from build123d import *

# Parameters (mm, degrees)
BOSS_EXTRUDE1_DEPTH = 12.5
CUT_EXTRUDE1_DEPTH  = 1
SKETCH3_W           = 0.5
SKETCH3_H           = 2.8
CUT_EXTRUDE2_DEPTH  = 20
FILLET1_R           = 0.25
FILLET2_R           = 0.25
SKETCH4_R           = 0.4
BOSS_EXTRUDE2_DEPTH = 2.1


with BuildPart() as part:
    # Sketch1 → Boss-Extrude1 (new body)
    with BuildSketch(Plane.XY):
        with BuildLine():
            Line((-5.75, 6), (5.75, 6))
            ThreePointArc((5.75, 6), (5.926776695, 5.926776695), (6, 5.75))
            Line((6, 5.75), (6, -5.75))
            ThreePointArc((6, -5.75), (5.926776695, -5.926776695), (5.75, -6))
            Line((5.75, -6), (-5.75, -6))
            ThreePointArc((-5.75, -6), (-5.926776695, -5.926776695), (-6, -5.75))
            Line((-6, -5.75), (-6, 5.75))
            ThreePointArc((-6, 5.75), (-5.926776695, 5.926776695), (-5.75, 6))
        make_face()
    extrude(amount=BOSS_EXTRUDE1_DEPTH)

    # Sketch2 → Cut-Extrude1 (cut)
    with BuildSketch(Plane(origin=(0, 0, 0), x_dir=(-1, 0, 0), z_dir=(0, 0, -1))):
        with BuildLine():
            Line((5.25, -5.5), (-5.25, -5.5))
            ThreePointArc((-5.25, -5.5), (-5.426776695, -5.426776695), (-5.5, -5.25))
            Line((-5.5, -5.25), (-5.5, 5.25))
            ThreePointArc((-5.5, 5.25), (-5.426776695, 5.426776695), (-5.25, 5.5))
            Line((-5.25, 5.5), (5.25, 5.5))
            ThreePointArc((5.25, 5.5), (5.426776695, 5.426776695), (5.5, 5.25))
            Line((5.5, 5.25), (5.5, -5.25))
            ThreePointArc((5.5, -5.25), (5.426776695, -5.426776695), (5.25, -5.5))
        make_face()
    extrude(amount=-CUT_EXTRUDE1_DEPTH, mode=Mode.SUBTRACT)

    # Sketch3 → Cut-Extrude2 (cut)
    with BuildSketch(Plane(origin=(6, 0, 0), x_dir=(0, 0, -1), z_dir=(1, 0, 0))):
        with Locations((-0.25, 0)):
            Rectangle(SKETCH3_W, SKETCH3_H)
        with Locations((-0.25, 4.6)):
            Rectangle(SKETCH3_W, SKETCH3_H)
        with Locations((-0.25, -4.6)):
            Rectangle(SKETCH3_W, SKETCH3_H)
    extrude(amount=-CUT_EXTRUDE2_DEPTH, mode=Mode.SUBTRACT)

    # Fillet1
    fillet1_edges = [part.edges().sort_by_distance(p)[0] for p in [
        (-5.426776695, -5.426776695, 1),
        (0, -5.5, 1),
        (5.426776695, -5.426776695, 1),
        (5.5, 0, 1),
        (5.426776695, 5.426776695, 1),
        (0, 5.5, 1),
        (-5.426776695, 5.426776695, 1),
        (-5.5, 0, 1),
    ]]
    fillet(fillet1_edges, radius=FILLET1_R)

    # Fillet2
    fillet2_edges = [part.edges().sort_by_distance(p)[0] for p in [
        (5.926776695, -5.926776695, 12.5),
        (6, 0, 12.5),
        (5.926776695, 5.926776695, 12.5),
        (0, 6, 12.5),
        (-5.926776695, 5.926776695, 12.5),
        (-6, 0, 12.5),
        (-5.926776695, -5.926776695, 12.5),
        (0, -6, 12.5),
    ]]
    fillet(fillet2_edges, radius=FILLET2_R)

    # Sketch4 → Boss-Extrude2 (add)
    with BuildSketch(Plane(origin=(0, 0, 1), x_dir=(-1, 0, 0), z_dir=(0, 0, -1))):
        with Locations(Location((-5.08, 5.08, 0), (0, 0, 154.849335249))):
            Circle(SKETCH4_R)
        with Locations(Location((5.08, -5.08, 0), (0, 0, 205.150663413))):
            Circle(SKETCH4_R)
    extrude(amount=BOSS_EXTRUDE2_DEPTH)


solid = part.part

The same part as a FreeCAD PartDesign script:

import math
import FreeCAD as App
import Part
import Sketcher


def edges_at(feature, points):
    """Names of the edges that pass closest to the given points."""
    edges = feature.Shape.Edges
    near = lambda p: min(range(len(edges)), key=lambda i: edges[i].distToShape(Part.Vertex(*p))[0])
    return sorted({f"Edge{near(p) + 1}" for p in points})

doc = App.newDocument("Part")
body = doc.addObject("PartDesign::Body", "Body")

# Sketch on XY plane
sketch1 = body.newObject("Sketcher::SketchObject", "Sketch")
sketch1.AttachmentSupport = (doc.getObject("XY_Plane"), [""])
sketch1.MapMode = "FlatFace"
sketch1.addGeometry([
    Part.LineSegment(App.Vector(5.75, 6, 0), App.Vector(-5.75, 6, 0)),  # 0
    Part.ArcOfCircle(Part.Circle(App.Vector(-5.75, 5.75, 0), App.Vector(0, 0, 1), 0.25), math.radians(90), math.radians(180)),  # 1
    Part.LineSegment(App.Vector(-6, 5.75, 0), App.Vector(-6, -5.75, 0)),  # 2
    Part.ArcOfCircle(Part.Circle(App.Vector(-5.75, -5.75, 0), App.Vector(0, 0, 1), 0.25), math.radians(-180), math.radians(-90)),  # 3
    Part.LineSegment(App.Vector(-5.75, -6, 0), App.Vector(5.75, -6, 0)),  # 4
    Part.ArcOfCircle(Part.Circle(App.Vector(5.75, -5.75, 0), App.Vector(0, 0, 1), 0.25), math.radians(-90), math.radians(0)),  # 5
    Part.LineSegment(App.Vector(6, -5.75, 0), App.Vector(6, 5.75, 0)),  # 6
    Part.ArcOfCircle(Part.Circle(App.Vector(5.75, 5.75, 0), App.Vector(0, 0, 1), 0.25), math.radians(0), math.radians(90)),  # 7
], False)
sketch1.addConstraint([
    Sketcher.Constraint("Tangent", 0, 2, 1, 1),
    Sketcher.Constraint("Tangent", 1, 2, 2, 1),
    Sketcher.Constraint("Tangent", 2, 2, 3, 1),
    Sketcher.Constraint("Tangent", 3, 2, 4, 1),
    Sketcher.Constraint("Tangent", 4, 2, 5, 1),
    Sketcher.Constraint("Tangent", 5, 2, 6, 1),
    Sketcher.Constraint("Tangent", 6, 2, 7, 1),
    Sketcher.Constraint("Tangent", 7, 2, 0, 1),
    Sketcher.Constraint("Horizontal", 0),
    Sketcher.Constraint("Vertical", 2),
    Sketcher.Constraint("Horizontal", 4),
    Sketcher.Constraint("Vertical", 6),
    Sketcher.Constraint("Equal", 1, 3),
    Sketcher.Constraint("Equal", 3, 5),
    Sketcher.Constraint("Equal", 5, 7),
    Sketcher.Constraint("Symmetric", 1, 3, 5, 3, -1, 1),
    Sketcher.Constraint("Equal", 4, 2),
    Sketcher.Constraint("Radius", 1, 0.25),
    Sketcher.Constraint("DistanceX", 0, 2, 0, 1, 11.5),
])
pad1 = body.newObject("PartDesign::Pad", "Pad")
pad1.Profile = sketch1
pad1.Length = 12.5

# Sketch on XY plane
sketch2 = body.newObject("Sketcher::SketchObject", "Sketch001")
sketch2.AttachmentSupport = (doc.getObject("XY_Plane"), [""])
sketch2.MapMode = "FlatFace"
sketch2.addGeometry([
    Part.LineSegment(App.Vector(5.25, -5.5, 0), App.Vector(-5.25, -5.5, 0)),  # 0
    Part.ArcOfCircle(Part.Circle(App.Vector(-5.25, -5.25, 0), App.Vector(0, 0, 1), 0.25), math.radians(-180), math.radians(-90)),  # 1
    Part.LineSegment(App.Vector(-5.5, -5.25, 0), App.Vector(-5.5, 5.25, 0)),  # 2
    Part.ArcOfCircle(Part.Circle(App.Vector(-5.25, 5.25, 0), App.Vector(0, 0, 1), 0.25), math.radians(90), math.radians(180)),  # 3
    Part.LineSegment(App.Vector(-5.25, 5.5, 0), App.Vector(5.25, 5.5, 0)),  # 4
    Part.ArcOfCircle(Part.Circle(App.Vector(5.25, 5.25, 0), App.Vector(0, 0, 1), 0.25), math.radians(0), math.radians(90)),  # 5
    Part.LineSegment(App.Vector(5.5, 5.25, 0), App.Vector(5.5, -5.25, 0)),  # 6
    Part.ArcOfCircle(Part.Circle(App.Vector(5.25, -5.25, 0), App.Vector(0, 0, 1), 0.25), math.radians(-90), math.radians(0)),  # 7
], False)
sketch2.addConstraint([
    Sketcher.Constraint("Tangent", 0, 2, 1, 2),
    Sketcher.Constraint("Tangent", 1, 1, 2, 1),
    Sketcher.Constraint("Tangent", 2, 2, 3, 2),
    Sketcher.Constraint("Tangent", 3, 1, 4, 1),
    Sketcher.Constraint("Tangent", 4, 2, 5, 2),
    Sketcher.Constraint("Tangent", 5, 1, 6, 1),
    Sketcher.Constraint("Tangent", 6, 2, 7, 2),
    Sketcher.Constraint("Tangent", 7, 1, 0, 1),
    Sketcher.Constraint("Horizontal", 0),
    Sketcher.Constraint("Vertical", 2),
    Sketcher.Constraint("Horizontal", 4),
    Sketcher.Constraint("Vertical", 6),
    Sketcher.Constraint("Equal", 1, 3),
    Sketcher.Constraint("Equal", 3, 5),
    Sketcher.Constraint("Equal", 5, 7),
    Sketcher.Constraint("Symmetric", 1, 3, 5, 3, -1, 1),
    Sketcher.Constraint("Equal", 4, 2),
    Sketcher.Constraint("Radius", 1, 0.25),
    Sketcher.Constraint("DistanceX", 0, 2, 0, 1, 10.5),
])
pocket1 = body.newObject("PartDesign::Pocket", "Pocket")
pocket1.Profile = sketch2
pocket1.Length = 1
pocket1.Reversed = True

# Sketch on YZ plane
sketch3 = body.newObject("Sketcher::SketchObject", "Sketch002")
sketch3.AttachmentSupport = (doc.getObject("YZ_Plane"), [""])
sketch3.MapMode = "FlatFace"
sketch3.AttachmentOffset = App.Placement(App.Vector(0, 0, 6), App.Rotation())
sketch3.addGeometry([
    Part.LineSegment(App.Vector(1.4, 0.5, 0), App.Vector(-1.4, 0.5, 0)),  # 0
    Part.LineSegment(App.Vector(-1.4, 0.5, 0), App.Vector(-1.4, 0, 0)),  # 1
    Part.LineSegment(App.Vector(-1.4, 0, 0), App.Vector(1.4, 0, 0)),  # 2
    Part.LineSegment(App.Vector(1.4, 0, 0), App.Vector(1.4, 0.5, 0)),  # 3
    Part.LineSegment(App.Vector(6, 0.5, 0), App.Vector(3.2, 0.5, 0)),  # 4
    Part.LineSegment(App.Vector(3.2, 0.5, 0), App.Vector(3.2, 0, 0)),  # 5
    Part.LineSegment(App.Vector(3.2, 0, 0), App.Vector(6, 0, 0)),  # 6
    Part.LineSegment(App.Vector(6, 0, 0), App.Vector(6, 0.5, 0)),  # 7
    Part.LineSegment(App.Vector(-3.2, 0.5, 0), App.Vector(-6, 0.5, 0)),  # 8
    Part.LineSegment(App.Vector(-6, 0.5, 0), App.Vector(-6, 0, 0)),  # 9
    Part.LineSegment(App.Vector(-6, 0, 0), App.Vector(-3.2, 0, 0)),  # 10
    Part.LineSegment(App.Vector(-3.2, 0, 0), App.Vector(-3.2, 0.5, 0)),  # 11
], False)
sketch3.addConstraint([
    Sketcher.Constraint("Coincident", 0, 2, 1, 1),
    Sketcher.Constraint("Coincident", 1, 2, 2, 1),
    Sketcher.Constraint("Coincident", 2, 2, 3, 1),
    Sketcher.Constraint("Coincident", 3, 2, 0, 1),
    Sketcher.Constraint("Coincident", 4, 2, 5, 1),
    Sketcher.Constraint("Coincident", 5, 2, 6, 1),
    Sketcher.Constraint("Coincident", 6, 2, 7, 1),
    Sketcher.Constraint("Coincident", 7, 2, 4, 1),
    Sketcher.Constraint("Coincident", 8, 2, 9, 1),
    Sketcher.Constraint("Coincident", 9, 2, 10, 1),
    Sketcher.Constraint("Coincident", 10, 2, 11, 1),
    Sketcher.Constraint("Coincident", 11, 2, 8, 1),
    Sketcher.Constraint("Horizontal", 0),
    Sketcher.Constraint("Vertical", 1),
    Sketcher.Constraint("Horizontal", 2),
    Sketcher.Constraint("Vertical", 3),
    Sketcher.Constraint("Horizontal", 4),
    Sketcher.Constraint("Vertical", 5),
    Sketcher.Constraint("Horizontal", 6),
    Sketcher.Constraint("Vertical", 7),
    Sketcher.Constraint("Horizontal", 8),
    Sketcher.Constraint("Vertical", 9),
    Sketcher.Constraint("Horizontal", 10),
    Sketcher.Constraint("Vertical", 11),
    Sketcher.Constraint("Symmetric", 1, 2, 2, 2, -1, 1),
    Sketcher.Constraint("Symmetric", 6, 2, 9, 2, -1, 1),
    Sketcher.Constraint("Symmetric", 5, 2, 10, 2, -2),
    Sketcher.Constraint("Horizontal", 3, 2, 4, 2),
    Sketcher.Constraint("Horizontal", 7, 2, 8, 2),
    Sketcher.Constraint("Equal", 2, 4),
    Sketcher.Constraint("DistanceX", 0, 2, 0, 1, 2.8),
    Sketcher.Constraint("DistanceY", 1, 2, 1, 1, 0.5),
    Sketcher.Constraint("DistanceX", -1, 1, 6, 2, 6.0),
])
pocket2 = body.newObject("PartDesign::Pocket", "Pocket001")
pocket2.Profile = sketch3
pocket2.Length = 20
doc.recompute()

fillet = body.newObject("PartDesign::Fillet", "Fillet")
fillet.Base = (pocket2, edges_at(pocket2, [
    (-5.427, -5.427, 1),
    (0, -5.5, 1),
    (5.427, -5.427, 1),
    (5.5, 0, 1),
    (5.427, 5.427, 1),
    (0, 5.5, 1),
    (-5.427, 5.427, 1),
    (-5.5, 0, 1),
]))
fillet.Radius = 0.25
doc.recompute()

fillet2 = body.newObject("PartDesign::Fillet", "Fillet001")
fillet2.Base = (fillet, edges_at(fillet, [
    (5.927, -5.927, 12.5),
    (6, 0, 12.5),
    (5.927, 5.927, 12.5),
    (0, 6, 12.5),
    (-5.927, 5.927, 12.5),
    (-6, 0, 12.5),
    (-5.927, -5.927, 12.5),
    (0, -6, 12.5),
]))
fillet2.Radius = 0.25

# Sketch on XY plane
sketch4 = body.newObject("Sketcher::SketchObject", "Sketch003")
sketch4.AttachmentSupport = (doc.getObject("XY_Plane"), [""])
sketch4.MapMode = "FlatFace"
sketch4.AttachmentOffset = App.Placement(App.Vector(0, 0, 1), App.Rotation())
sketch4.addGeometry([
    Part.Circle(App.Vector(5.08, 5.08, 0), App.Vector(0, 0, 1), 0.4),
    Part.Circle(App.Vector(-5.08, -5.08, 0), App.Vector(0, 0, 1), 0.4),
], False)
sketch4.addConstraint([
    Sketcher.Constraint("Equal", 0, 1),
    Sketcher.Constraint("Symmetric", 0, 3, 1, 3, -1, 1),
    Sketcher.Constraint("Diameter", 0, 0.8),
    Sketcher.Constraint("DistanceX", -1, 1, 0, 3, 5.08),
    Sketcher.Constraint("DistanceY", -1, 1, 0, 3, 5.08),
])
pad2 = body.newObject("PartDesign::Pad", "Pad001")
pad2.Profile = sketch4
pad2.Length = 2.1
pad2.Reversed = True

doc.recompute()
